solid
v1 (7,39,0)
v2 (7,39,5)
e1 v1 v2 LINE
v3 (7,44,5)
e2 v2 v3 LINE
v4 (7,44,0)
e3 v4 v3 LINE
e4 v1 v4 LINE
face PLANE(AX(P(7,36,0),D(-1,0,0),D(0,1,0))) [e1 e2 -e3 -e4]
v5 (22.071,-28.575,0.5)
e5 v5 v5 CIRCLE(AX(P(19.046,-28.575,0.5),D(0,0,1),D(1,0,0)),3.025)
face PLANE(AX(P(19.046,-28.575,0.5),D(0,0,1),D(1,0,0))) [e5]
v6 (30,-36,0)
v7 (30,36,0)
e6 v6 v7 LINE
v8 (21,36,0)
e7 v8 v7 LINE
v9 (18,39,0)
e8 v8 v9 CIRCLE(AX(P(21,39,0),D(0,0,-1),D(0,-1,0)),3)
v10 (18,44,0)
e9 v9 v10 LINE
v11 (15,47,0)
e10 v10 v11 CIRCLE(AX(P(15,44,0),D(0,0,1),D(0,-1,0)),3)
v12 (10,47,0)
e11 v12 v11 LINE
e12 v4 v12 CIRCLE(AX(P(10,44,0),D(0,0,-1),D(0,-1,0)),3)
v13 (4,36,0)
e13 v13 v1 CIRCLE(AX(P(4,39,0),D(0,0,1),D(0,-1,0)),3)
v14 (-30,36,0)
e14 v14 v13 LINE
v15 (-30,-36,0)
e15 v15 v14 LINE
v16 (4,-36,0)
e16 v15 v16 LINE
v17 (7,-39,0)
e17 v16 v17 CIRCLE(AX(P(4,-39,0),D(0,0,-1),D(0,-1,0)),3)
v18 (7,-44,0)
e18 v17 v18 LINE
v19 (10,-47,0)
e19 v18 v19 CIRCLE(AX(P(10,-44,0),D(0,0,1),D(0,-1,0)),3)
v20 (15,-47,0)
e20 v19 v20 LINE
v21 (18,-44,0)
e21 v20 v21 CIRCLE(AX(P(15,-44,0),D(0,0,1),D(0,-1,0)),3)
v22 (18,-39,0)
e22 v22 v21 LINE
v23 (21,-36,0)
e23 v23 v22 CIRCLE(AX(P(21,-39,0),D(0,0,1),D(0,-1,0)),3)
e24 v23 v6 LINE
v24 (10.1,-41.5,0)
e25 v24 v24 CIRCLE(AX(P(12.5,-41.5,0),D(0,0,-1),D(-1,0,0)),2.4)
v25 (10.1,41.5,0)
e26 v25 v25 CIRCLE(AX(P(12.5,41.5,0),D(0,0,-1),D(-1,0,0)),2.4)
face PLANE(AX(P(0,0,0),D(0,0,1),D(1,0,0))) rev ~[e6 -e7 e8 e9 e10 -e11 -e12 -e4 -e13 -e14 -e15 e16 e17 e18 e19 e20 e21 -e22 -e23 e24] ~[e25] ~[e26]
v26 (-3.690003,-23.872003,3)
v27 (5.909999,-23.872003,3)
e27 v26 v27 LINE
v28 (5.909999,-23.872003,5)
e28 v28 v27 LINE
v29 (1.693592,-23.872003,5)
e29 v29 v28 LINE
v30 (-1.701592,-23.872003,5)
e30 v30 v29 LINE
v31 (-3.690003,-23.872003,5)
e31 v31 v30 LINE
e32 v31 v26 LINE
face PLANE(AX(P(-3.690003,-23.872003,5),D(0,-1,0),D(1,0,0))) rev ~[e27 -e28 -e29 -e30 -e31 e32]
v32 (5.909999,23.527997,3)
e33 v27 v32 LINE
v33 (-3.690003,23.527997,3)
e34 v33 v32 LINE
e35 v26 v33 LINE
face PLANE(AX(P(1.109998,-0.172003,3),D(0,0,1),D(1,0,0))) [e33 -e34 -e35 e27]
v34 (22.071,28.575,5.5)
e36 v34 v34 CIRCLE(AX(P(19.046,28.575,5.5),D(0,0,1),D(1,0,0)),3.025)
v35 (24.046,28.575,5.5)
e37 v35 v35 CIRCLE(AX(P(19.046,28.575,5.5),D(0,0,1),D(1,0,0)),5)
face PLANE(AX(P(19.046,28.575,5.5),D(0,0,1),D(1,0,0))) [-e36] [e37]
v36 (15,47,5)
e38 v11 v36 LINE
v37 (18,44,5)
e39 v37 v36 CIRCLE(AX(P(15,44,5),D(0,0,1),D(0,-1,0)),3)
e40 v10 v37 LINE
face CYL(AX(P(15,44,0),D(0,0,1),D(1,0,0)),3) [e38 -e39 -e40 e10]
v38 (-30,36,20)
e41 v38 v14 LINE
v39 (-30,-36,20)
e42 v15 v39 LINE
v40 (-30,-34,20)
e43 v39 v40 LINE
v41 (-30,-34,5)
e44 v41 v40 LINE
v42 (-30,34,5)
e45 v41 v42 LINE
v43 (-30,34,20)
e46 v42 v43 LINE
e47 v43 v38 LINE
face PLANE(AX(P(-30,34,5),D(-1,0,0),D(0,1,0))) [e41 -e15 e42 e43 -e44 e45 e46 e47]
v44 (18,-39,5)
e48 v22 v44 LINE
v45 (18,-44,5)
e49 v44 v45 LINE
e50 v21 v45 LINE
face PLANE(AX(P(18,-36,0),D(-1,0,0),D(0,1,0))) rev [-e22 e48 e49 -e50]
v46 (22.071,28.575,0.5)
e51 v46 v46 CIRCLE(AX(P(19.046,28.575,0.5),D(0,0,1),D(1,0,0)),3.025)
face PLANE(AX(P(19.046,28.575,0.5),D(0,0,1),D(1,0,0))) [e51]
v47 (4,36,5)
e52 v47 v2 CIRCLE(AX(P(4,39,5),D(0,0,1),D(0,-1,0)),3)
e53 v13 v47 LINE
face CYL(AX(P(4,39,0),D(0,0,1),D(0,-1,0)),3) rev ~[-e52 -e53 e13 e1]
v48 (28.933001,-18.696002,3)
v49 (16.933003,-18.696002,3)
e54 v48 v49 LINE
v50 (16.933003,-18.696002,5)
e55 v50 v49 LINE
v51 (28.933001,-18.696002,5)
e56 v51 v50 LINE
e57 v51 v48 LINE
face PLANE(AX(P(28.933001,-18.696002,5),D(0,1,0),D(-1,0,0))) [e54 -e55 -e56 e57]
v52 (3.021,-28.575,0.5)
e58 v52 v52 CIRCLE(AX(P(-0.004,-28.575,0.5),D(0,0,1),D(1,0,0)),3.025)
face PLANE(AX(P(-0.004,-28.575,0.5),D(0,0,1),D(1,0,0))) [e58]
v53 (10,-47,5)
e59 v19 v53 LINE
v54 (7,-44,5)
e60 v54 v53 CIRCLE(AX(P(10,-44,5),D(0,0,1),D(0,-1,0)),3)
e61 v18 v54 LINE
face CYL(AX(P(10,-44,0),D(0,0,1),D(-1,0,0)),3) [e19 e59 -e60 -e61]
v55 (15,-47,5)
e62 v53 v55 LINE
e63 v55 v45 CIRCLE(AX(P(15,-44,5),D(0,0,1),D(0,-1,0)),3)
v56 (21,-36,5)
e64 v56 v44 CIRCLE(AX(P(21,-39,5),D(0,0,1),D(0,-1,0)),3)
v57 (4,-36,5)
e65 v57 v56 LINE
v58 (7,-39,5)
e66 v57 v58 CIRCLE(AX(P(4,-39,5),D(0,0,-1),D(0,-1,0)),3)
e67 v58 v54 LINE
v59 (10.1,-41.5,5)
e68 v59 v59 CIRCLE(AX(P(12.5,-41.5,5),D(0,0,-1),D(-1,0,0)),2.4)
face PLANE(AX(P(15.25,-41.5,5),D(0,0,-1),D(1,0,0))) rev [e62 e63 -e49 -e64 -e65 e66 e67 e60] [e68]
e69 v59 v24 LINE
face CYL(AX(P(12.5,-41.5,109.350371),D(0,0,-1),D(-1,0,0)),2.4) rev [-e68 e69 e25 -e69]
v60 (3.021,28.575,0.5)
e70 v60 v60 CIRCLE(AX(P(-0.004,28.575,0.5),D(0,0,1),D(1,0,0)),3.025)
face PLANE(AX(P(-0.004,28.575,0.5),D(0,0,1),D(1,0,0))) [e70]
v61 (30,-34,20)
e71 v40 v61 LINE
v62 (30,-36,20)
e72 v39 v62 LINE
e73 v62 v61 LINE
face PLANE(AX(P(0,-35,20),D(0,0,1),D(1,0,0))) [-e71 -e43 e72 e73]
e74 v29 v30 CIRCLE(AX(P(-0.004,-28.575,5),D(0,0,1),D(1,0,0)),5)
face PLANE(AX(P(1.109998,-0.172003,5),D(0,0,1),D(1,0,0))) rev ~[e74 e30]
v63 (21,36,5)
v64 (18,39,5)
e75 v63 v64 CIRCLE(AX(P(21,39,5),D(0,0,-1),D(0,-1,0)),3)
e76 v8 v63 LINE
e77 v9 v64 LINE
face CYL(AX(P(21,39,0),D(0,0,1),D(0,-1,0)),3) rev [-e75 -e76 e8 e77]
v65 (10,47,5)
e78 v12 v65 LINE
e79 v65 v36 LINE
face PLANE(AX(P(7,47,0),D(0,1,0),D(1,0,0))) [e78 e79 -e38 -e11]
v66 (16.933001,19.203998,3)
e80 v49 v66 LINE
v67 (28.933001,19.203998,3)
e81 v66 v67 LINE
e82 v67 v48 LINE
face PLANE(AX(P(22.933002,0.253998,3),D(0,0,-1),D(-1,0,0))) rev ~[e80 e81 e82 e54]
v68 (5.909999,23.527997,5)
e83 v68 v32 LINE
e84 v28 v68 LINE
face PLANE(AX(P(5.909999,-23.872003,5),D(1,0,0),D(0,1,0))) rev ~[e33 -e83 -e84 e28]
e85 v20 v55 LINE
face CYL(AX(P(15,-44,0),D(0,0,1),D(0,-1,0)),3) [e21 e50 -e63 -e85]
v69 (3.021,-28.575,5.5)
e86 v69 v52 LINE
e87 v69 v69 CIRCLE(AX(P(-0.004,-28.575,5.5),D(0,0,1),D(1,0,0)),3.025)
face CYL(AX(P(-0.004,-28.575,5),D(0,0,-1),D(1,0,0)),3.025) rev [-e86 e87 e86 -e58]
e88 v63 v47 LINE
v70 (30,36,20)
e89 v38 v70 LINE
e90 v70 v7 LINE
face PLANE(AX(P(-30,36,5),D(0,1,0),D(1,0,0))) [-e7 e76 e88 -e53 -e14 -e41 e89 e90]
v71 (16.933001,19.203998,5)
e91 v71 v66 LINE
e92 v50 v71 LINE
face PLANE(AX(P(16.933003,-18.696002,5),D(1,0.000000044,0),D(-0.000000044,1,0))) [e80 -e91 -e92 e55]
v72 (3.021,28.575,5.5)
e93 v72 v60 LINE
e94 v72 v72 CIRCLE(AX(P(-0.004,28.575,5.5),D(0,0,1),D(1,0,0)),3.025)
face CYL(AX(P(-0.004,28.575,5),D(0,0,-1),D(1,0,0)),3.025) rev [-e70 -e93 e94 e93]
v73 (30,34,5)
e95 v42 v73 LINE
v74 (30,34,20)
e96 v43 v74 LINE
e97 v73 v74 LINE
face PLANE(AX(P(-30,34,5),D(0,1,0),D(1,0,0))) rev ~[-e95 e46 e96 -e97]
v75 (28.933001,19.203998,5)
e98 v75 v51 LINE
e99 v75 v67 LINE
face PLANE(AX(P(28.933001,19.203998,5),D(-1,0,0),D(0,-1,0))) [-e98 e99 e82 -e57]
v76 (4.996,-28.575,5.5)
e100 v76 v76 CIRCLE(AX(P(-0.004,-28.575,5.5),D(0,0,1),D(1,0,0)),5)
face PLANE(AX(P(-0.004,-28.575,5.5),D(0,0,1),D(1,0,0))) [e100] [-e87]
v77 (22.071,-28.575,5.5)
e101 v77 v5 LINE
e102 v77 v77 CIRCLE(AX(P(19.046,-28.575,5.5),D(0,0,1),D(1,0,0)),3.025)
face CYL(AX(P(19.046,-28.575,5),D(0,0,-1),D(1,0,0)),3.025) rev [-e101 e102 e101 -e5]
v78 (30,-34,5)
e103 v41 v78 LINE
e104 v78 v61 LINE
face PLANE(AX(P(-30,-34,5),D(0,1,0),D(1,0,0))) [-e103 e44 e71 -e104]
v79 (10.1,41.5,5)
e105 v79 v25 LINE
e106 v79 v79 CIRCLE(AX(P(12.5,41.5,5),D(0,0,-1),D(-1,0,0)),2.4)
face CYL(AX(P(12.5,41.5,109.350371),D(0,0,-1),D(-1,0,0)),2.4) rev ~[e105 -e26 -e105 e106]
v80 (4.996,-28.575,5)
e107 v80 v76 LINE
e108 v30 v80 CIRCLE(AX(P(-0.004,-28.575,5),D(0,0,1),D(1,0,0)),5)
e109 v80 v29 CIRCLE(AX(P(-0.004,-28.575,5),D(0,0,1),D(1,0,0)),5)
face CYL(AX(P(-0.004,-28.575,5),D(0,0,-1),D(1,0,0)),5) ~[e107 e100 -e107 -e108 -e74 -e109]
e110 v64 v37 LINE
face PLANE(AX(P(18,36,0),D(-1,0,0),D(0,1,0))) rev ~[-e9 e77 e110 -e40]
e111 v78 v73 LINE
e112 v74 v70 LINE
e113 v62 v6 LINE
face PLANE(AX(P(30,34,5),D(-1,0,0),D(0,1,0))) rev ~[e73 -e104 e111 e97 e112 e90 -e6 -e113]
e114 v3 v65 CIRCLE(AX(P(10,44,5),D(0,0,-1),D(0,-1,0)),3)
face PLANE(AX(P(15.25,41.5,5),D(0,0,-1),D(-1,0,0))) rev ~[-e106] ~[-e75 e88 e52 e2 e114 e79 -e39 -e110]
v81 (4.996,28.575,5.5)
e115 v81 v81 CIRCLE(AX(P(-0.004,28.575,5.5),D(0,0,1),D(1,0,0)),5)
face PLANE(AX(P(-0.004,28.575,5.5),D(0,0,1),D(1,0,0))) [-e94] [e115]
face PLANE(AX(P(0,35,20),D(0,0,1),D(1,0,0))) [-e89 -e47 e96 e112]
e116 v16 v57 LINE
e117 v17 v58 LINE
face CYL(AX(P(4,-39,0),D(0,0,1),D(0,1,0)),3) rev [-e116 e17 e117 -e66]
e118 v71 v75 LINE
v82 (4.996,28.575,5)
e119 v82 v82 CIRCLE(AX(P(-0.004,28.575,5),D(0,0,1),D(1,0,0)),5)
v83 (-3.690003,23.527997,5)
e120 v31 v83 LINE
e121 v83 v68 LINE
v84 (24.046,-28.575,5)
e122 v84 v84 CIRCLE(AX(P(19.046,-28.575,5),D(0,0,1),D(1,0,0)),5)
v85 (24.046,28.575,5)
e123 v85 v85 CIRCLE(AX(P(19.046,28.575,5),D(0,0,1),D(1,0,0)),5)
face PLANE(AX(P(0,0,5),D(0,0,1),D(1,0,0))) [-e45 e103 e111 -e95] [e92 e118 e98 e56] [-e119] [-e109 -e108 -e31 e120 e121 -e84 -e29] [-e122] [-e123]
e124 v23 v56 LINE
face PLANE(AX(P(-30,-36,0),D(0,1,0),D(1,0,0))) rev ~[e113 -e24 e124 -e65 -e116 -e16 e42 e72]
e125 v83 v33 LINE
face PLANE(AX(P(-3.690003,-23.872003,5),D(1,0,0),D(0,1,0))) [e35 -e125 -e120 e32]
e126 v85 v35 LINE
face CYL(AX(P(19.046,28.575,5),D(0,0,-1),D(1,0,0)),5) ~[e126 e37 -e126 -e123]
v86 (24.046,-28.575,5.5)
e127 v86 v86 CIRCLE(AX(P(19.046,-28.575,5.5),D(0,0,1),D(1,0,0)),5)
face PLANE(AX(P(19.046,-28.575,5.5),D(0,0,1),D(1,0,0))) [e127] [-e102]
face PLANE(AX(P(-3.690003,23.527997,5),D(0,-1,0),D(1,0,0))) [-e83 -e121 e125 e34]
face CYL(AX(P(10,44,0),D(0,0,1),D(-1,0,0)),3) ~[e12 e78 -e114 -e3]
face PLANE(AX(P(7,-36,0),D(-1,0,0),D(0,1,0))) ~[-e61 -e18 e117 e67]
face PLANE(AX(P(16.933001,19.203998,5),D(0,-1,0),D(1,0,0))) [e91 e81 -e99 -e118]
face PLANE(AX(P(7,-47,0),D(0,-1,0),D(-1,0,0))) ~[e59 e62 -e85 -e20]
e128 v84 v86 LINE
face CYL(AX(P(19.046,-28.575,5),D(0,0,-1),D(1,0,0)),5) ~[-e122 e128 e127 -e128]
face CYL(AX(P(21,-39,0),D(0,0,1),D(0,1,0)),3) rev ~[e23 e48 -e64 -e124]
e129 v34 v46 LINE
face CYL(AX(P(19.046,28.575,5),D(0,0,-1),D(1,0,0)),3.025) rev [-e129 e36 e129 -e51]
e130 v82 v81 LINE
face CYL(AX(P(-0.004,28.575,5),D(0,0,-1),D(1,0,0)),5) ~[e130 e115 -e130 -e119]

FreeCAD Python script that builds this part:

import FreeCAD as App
import Part
import Sketcher
from FreeCAD import Vector
Q = App.Units.Quantity


def edges_at(feature, points):
    """Names of the edges that pass closest to the given points."""
    edges = feature.Shape.Edges
    near = lambda p: min(range(len(edges)), key=lambda i: edges[i].distToShape(Part.Vertex(*p))[0])
    return sorted({f"Edge{near(p) + 1}" for p in points})

doc = App.newDocument("Part")
body = doc.addObject("PartDesign::Body", "Body")

# Sketch on XY plane
sketch1 = doc.addObject("Sketcher::SketchObject", "Sketch")
body.addObject(sketch1)
sketch1.AttachmentSupport = (doc.XY_Plane, [""])
sketch1.MapMode = "FlatFace"
sketch1.addGeometry([
    Part.LineSegment(Vector(-30, 36, 0), Vector(-30, -36, 0)),
    Part.LineSegment(Vector(-30, -36, 0), Vector(30, -36, 0)),
    Part.LineSegment(Vector(30, -36, 0), Vector(30, 36, 0)),
    Part.LineSegment(Vector(30, 36, 0), Vector(-30, 36, 0)),
], False)
sketch1.addConstraint([
    Sketcher.Constraint("Coincident", 0, 2, 1, 1),
    Sketcher.Constraint("Coincident", 1, 2, 2, 1),
    Sketcher.Constraint("Coincident", 2, 2, 3, 1),
    Sketcher.Constraint("Coincident", 3, 2, 0, 1),
    Sketcher.Constraint("Vertical", 0),
    Sketcher.Constraint("Horizontal", 1),
    Sketcher.Constraint("Vertical", 2),
    Sketcher.Constraint("Horizontal", 3),
    Sketcher.Constraint("Symmetric", 0, 2, 2, 2, -1, 1),
    Sketcher.Constraint("DistanceX", 1, 1, 1, 2, Q("60 mm")),
    Sketcher.Constraint("DistanceY", 0, 2, 0, 1, Q("72 mm")),
])
pad1 = doc.addObject("PartDesign::Pad", "Pad")
body.addObject(pad1)
pad1.Profile = sketch1
pad1.Length = 5

# Sketch on XY plane
sketch2 = doc.addObject("Sketcher::SketchObject", "Sketch001")
body.addObject(sketch2)
sketch2.AttachmentSupport = (doc.XY_Plane, [""])
sketch2.MapMode = "FlatFace"
sketch2.AttachmentOffset = App.Placement(Vector(0, 0, 5), App.Rotation())
sketch2.addGeometry([
    Part.Circle(Vector(19, 28.6, 0), Vector(0, 0, 1), 5),  # 0
    Part.Circle(Vector(19, 28.6, 0), Vector(0, 0, 1), 3),  # 1
    Part.Circle(Vector(19, -28.6, 0), Vector(0, 0, 1), 5),  # 2
    Part.Circle(Vector(19, -28.6, 0), Vector(0, 0, 1), 3),  # 3
    Part.Circle(Vector(0, -28.6, 0), Vector(0, 0, 1), 5),  # 4
    Part.Circle(Vector(0, -28.6, 0), Vector(0, 0, 1), 3),  # 5
    Part.Circle(Vector(0, 28.6, 0), Vector(0, 0, 1), 5),  # 6
    Part.Circle(Vector(0, 28.6, 0), Vector(0, 0, 1), 3),  # 7
], False)
sketch2.addConstraint([
    Sketcher.Constraint("Coincident", 1, 3, 0, 3),
    Sketcher.Constraint("Coincident", 3, 3, 2, 3),
    Sketcher.Constraint("Coincident", 5, 3, 4, 3),
    Sketcher.Constraint("Coincident", 7, 3, 6, 3),
    Sketcher.Constraint("Equal", 0, 2),
    Sketcher.Constraint("Equal", 1, 3),
    Sketcher.Constraint("Equal", 2, 4),
    Sketcher.Constraint("Equal", 3, 5),
    Sketcher.Constraint("Equal", 4, 6),
    Sketcher.Constraint("Equal", 5, 7),
    Sketcher.Constraint("Symmetric", 0, 3, 2, 3, -1),
    Sketcher.Constraint("Symmetric", 4, 3, 6, 3, -1),
    Sketcher.Constraint("Horizontal", 3, 3, 4, 3),
    Sketcher.Constraint("Diameter", 0, Q("10 mm")),
    Sketcher.Constraint("Diameter", 1, Q("6.05 mm")),
    Sketcher.Constraint("DistanceY", 2, 3, 0, 3, Q("57.15 mm")),
    Sketcher.Constraint("DistanceX", 4, 3, 2, 3, Q("19.05 mm")),
    Sketcher.Constraint("DistanceX", -1, 1, 0, 3, Q("19.046 mm")),
])
pad2 = doc.addObject("PartDesign::Pad", "Pad001")
body.addObject(pad2)
pad2.Profile = sketch2
pad2.Length = 0.5

# Sketch on XY plane
sketch3 = doc.addObject("Sketcher::SketchObject", "Sketch002")
body.addObject(sketch3)
sketch3.AttachmentSupport = (doc.XY_Plane, [""])
sketch3.MapMode = "FlatFace"
sketch3.AttachmentOffset = App.Placement(Vector(0, 0, 0.5), App.Rotation())
sketch3.addGeometry([
    Part.Circle(Vector(0, 28.6, 0), Vector(0, 0, 1), 3),
    Part.Circle(Vector(19, 28.6, 0), Vector(0, 0, 1), 3),
    Part.Circle(Vector(0, -28.6, 0), Vector(0, 0, 1), 3),
    Part.Circle(Vector(19, -28.6, 0), Vector(0, 0, 1), 3),
], False)
sketch3.addConstraint([
    Sketcher.Constraint("Equal", 0, 1),
    Sketcher.Constraint("Equal", 1, 2),
    Sketcher.Constraint("Equal", 2, 3),
    Sketcher.Constraint("Symmetric", 0, 3, 2, 3, -1),
    Sketcher.Constraint("Symmetric", 1, 3, 3, 3, -1),
    Sketcher.Constraint("Horizontal", 0, 3, 1, 3),
    Sketcher.Constraint("Diameter", 0, Q("6.05 mm")),
    Sketcher.Constraint("DistanceX", 0, 3, 1, 3, Q("19.05 mm")),
    Sketcher.Constraint("DistanceY", 2, 3, 0, 3, Q("57.15 mm")),
    Sketcher.Constraint("DistanceX", 0, 3, -1, 1, Q("0.004 mm")),
])
pocket1 = doc.addObject("PartDesign::Pocket", "Pocket")
body.addObject(pocket1)
pocket1.Profile = sketch3
pocket1.Length = 4.5
pocket1.Reversed = True

# Sketch on XY plane
sketch4 = doc.addObject("Sketcher::SketchObject", "Sketch003")
body.addObject(sketch4)
sketch4.AttachmentSupport = (doc.XY_Plane, [""])
sketch4.MapMode = "FlatFace"
sketch4.AttachmentOffset = App.Placement(Vector(0, 0, 5), App.Rotation())
sketch4.addGeometry([
    Part.LineSegment(Vector(-4, 24, 0), Vector(-4, -24, 0)),  # 0
    Part.LineSegment(Vector(-4, -24, 0), Vector(6, -24, 0)),  # 1
    Part.LineSegment(Vector(6, -24, 0), Vector(6, 24, 0)),  # 2
    Part.LineSegment(Vector(6, 24, 0), Vector(-4, 24, 0)),  # 3
    Part.LineSegment(Vector(29, 19, 0), Vector(17, 19, 0)),  # 4
    Part.LineSegment(Vector(17, 19, 0), Vector(17, -19, 0)),  # 5
    Part.LineSegment(Vector(17, -19, 0), Vector(29, -19, 0)),  # 6
    Part.LineSegment(Vector(29, -19, 0), Vector(29, 19, 0)),  # 7
], False)
sketch4.addConstraint([
    Sketcher.Constraint("Coincident", 0, 2, 1, 1),
    Sketcher.Constraint("Coincident", 1, 2, 2, 1),
    Sketcher.Constraint("Coincident", 2, 2, 3, 1),
    Sketcher.Constraint("Coincident", 3, 2, 0, 1),
    Sketcher.Constraint("Coincident", 4, 2, 5, 1),
    Sketcher.Constraint("Coincident", 5, 2, 6, 1),
    Sketcher.Constraint("Coincident", 6, 2, 7, 1),
    Sketcher.Constraint("Coincident", 7, 2, 4, 1),
    Sketcher.Constraint("Vertical", 0),
    Sketcher.Constraint("Horizontal", 1),
    Sketcher.Constraint("Vertical", 2),
    Sketcher.Constraint("Horizontal", 3),
    Sketcher.Constraint("Horizontal", 4),
    Sketcher.Constraint("Vertical", 5),
    Sketcher.Constraint("Horizontal", 6),
    Sketcher.Constraint("Vertical", 7),
    Sketcher.Constraint("DistanceX", 4, 2, 4, 1, Q("12 mm")),
    Sketcher.Constraint("DistanceY", 0, 2, 0, 1, Q("47.4 mm")),
    Sketcher.Constraint("DistanceY", 5, 2, 5, 1, Q("37.9 mm")),
    Sketcher.Constraint("DistanceX", -1, 1, 1, 2, Q("5.909999 mm")),
    Sketcher.Constraint("DistanceX", -1, 1, 4, 2, Q("16.933001 mm")),
    Sketcher.Constraint("DistanceY", 4, 2, 2, 2, Q("4.323999 mm")),
    Sketcher.Constraint("DistanceX", 1, 1, 1, 2, Q("9.600002 mm")),
    Sketcher.Constraint("DistanceY", 0, 2, -1, 1, Q("23.872003 mm")),
])
pocket2 = doc.addObject("PartDesign::Pocket", "Pocket001")
body.addObject(pocket2)
pocket2.Profile = sketch4
pocket2.Length = 2

# Sketch on XY plane
sketch5 = doc.addObject("Sketcher::SketchObject", "Sketch004")
body.addObject(sketch5)
sketch5.AttachmentSupport = (doc.XY_Plane, [""])
sketch5.MapMode = "FlatFace"
sketch5.AttachmentOffset = App.Placement(Vector(0, 0, 5), App.Rotation())
sketch5.addGeometry([
    Part.LineSegment(Vector(-30, 36, 0), Vector(-30, 34, 0)),  # 0
    Part.LineSegment(Vector(-30, 34, 0), Vector(30, 34, 0)),  # 1
    Part.LineSegment(Vector(30, 34, 0), Vector(30, 36, 0)),  # 2
    Part.LineSegment(Vector(30, 36, 0), Vector(-30, 36, 0)),  # 3
    Part.LineSegment(Vector(-30, -34, 0), Vector(-30, -36, 0)),  # 4
    Part.LineSegment(Vector(-30, -36, 0), Vector(30, -36, 0)),  # 5
    Part.LineSegment(Vector(30, -36, 0), Vector(30, -34, 0)),  # 6
    Part.LineSegment(Vector(30, -34, 0), Vector(-30, -34, 0)),  # 7
], False)
sketch5.addConstraint([
    Sketcher.Constraint("Coincident", 0, 2, 1, 1),
    Sketcher.Constraint("Coincident", 1, 2, 2, 1),
    Sketcher.Constraint("Coincident", 2, 2, 3, 1),
    Sketcher.Constraint("Coincident", 3, 2, 0, 1),
    Sketcher.Constraint("Coincident", 4, 2, 5, 1),
    Sketcher.Constraint("Coincident", 5, 2, 6, 1),
    Sketcher.Constraint("Coincident", 6, 2, 7, 1),
    Sketcher.Constraint("Coincident", 7, 2, 4, 1),
    Sketcher.Constraint("Vertical", 0),
    Sketcher.Constraint("Horizontal", 1),
    Sketcher.Constraint("Vertical", 2),
    Sketcher.Constraint("Horizontal", 3),
    Sketcher.Constraint("Vertical", 4),
    Sketcher.Constraint("Horizontal", 5),
    Sketcher.Constraint("Vertical", 6),
    Sketcher.Constraint("Horizontal", 7),
    Sketcher.Constraint("Symmetric", 2, 2, 4, 2, -1, 1),
    Sketcher.Constraint("Symmetric", 0, 2, 6, 2, -1, 1),
    Sketcher.Constraint("Vertical", 3, 2, 4, 2),
    Sketcher.Constraint("DistanceX", 1, 1, 1, 2, Q("60 mm")),
    Sketcher.Constraint("DistanceY", 0, 2, 0, 1, Q("2 mm")),
    Sketcher.Constraint("DistanceY", -1, 1, 0, 2, Q("34 mm")),
])
pad3 = doc.addObject("PartDesign::Pad", "Pad002")
body.addObject(pad3)
pad3.Profile = sketch5
pad3.Length = 15

# Sketch on XY plane
sketch6 = doc.addObject("Sketcher::SketchObject", "Sketch005")
body.addObject(sketch6)
sketch6.AttachmentSupport = (doc.XY_Plane, [""])
sketch6.MapMode = "FlatFace"
sketch6.addGeometry([
    Part.LineSegment(Vector(18, 47, 0), Vector(18, 36, 0)),
    Part.LineSegment(Vector(18, 36, 0), Vector(7, 36, 0)),
    Part.LineSegment(Vector(7, 36, 0), Vector(7, 47, 0)),
    Part.LineSegment(Vector(7, 47, 0), Vector(18, 47, 0)),
], False)
sketch6.addConstraint([
    Sketcher.Constraint("Coincident", 0, 2, 1, 1),
    Sketcher.Constraint("Coincident", 1, 2, 2, 1),
    Sketcher.Constraint("Coincident", 2, 2, 3, 1),
    Sketcher.Constraint("Coincident", 3, 2, 0, 1),
    Sketcher.Constraint("Vertical", 0),
    Sketcher.Constraint("Horizontal", 1),
    Sketcher.Constraint("Vertical", 2),
    Sketcher.Constraint("Horizontal", 3),
    Sketcher.Constraint("Equal", 3, 0),
    Sketcher.Constraint("DistanceX", 1, 2, 1, 1, Q("11 mm")),
    Sketcher.Constraint("DistanceX", -1, 1, 0, 2, Q("18 mm")),
    Sketcher.Constraint("DistanceY", -1, 1, 0, 2, Q("36 mm")),
])
pad4 = doc.addObject("PartDesign::Pad", "Pad003")
body.addObject(pad4)
pad4.Profile = sketch6
pad4.Length = 5

# Sketch on XY plane
sketch7 = doc.addObject("Sketcher::SketchObject", "Sketch006")
body.addObject(sketch7)
sketch7.AttachmentSupport = (doc.XY_Plane, [""])
sketch7.MapMode = "FlatFace"
sketch7.AttachmentOffset = App.Placement(Vector(0, 0, 5), App.Rotation())
sketch7.addGeometry(Part.Circle(Vector(12.5, 41.5, 0), Vector(0, 0, 1), 2.4), False)
sketch7.addConstraint([
    Sketcher.Constraint("Diameter", 0, Q("4.8 mm")),
    Sketcher.Constraint("DistanceX", -1, 1, 0, 3, Q("12.5 mm")),
    Sketcher.Constraint("DistanceY", -1, 1, 0, 3, Q("41.5 mm")),
])
doc.recompute()
hole = doc.addObject("PartDesign::Hole", "Hole")
body.addObject(hole)
hole.Profile = sketch7
hole.ThreadType = "None"
hole.Diameter = 4.8
hole.DepthType = "ThroughAll"
doc.recompute()

mirrored = doc.addObject("PartDesign::Mirrored", "Mirrored")
body.addObject(mirrored)
mirrored.Originals = [pad4, hole]
mirrored.MirrorPlane = (doc.XZ_Plane, [""])
body.Tip = mirrored
doc.recompute()

fillet = doc.addObject("PartDesign::Fillet", "Fillet")
body.addObject(fillet)
fillet.Base = (mirrored, edges_at(mirrored, [
    (7, 36, 2.5),
    (18, 36, 2.5),
    (18, 47, 2.5),
    (7, 47, 2.5),
    (18, -36, 2.5),
    (7, -36, 2.5),
    (7, -47, 2.5),
    (18, -47, 2.5),
]))
fillet.Radius = 3

doc.recompute()
